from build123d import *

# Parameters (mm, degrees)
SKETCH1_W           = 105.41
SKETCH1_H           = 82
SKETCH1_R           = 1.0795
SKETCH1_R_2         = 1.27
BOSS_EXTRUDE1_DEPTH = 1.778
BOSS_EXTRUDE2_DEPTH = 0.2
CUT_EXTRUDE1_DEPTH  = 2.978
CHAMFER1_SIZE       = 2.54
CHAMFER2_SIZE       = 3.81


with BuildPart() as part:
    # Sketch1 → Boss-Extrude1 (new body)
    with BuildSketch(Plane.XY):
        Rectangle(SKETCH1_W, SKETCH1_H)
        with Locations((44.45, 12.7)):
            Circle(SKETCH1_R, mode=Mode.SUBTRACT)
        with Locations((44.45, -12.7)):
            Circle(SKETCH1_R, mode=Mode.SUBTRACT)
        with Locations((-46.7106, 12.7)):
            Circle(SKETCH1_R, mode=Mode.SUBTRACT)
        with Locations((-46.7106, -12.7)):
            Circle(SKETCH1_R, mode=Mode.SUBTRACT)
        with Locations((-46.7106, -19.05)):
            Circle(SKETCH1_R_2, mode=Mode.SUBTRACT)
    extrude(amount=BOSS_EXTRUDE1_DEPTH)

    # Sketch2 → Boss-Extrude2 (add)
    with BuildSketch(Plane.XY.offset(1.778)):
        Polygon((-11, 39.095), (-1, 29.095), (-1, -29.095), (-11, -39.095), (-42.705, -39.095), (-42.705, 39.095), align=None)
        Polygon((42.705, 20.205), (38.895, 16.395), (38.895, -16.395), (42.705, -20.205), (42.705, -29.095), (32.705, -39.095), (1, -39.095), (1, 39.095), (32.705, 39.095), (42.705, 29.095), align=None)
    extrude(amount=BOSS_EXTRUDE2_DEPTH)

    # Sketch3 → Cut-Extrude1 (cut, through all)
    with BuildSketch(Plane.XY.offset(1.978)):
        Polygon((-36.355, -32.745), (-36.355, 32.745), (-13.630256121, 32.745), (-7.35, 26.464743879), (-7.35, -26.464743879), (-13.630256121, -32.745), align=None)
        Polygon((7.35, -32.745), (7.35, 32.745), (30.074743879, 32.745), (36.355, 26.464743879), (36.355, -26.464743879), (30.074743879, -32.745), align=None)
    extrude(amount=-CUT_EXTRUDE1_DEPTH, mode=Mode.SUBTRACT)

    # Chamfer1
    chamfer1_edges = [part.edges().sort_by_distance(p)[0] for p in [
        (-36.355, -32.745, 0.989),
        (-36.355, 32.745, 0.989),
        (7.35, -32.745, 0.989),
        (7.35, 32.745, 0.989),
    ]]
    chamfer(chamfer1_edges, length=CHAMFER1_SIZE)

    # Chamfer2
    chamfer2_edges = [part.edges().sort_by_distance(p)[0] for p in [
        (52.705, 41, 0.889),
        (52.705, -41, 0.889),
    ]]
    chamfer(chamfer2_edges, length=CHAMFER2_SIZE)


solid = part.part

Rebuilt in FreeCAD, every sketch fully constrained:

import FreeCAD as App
import Part
import Sketcher
Q = App.Units.Quantity


def edges_at(feature, points):
    """Names of the edges that pass closest to the given points."""
    edges = feature.Shape.Edges
    near = lambda p: min(range(len(edges)), key=lambda i: edges[i].distToShape(Part.Vertex(*p))[0])
    return sorted({f"Edge{near(p) + 1}" for p in points})

doc = App.newDocument("Part")
body = doc.addObject("PartDesign::Body", "Body")

# Sketch on XY plane
sketch1 = body.newObject("Sketcher::SketchObject", "Sketch")
sketch1.AttachmentSupport = (doc.getObject("XY_Plane"), [""])
sketch1.MapMode = "FlatFace"
sketch1.addGeometry([
    Part.LineSegment(App.Vector(-52.7, 41, 0), App.Vector(-52.7, -41, 0)),  # 0
    Part.LineSegment(App.Vector(-52.7, -41, 0), App.Vector(52.7, -41, 0)),  # 1
    Part.LineSegment(App.Vector(52.7, -41, 0), App.Vector(52.7, 41, 0)),  # 2
    Part.LineSegment(App.Vector(52.7, 41, 0), App.Vector(-52.7, 41, 0)),  # 3
    Part.Circle(App.Vector(-46.7, -19.1, 0), App.Vector(0, 0, 1), 1.3),  # 4
    Part.Circle(App.Vector(-46.7, -12.7, 0), App.Vector(0, 0, 1), 1.1),  # 5
    Part.Circle(App.Vector(44.5, -12.7, 0), App.Vector(0, 0, 1), 1.1),  # 6
    Part.Circle(App.Vector(-46.7, 12.7, 0), App.Vector(0, 0, 1), 1.1),  # 7
    Part.Circle(App.Vector(44.5, 12.7, 0), App.Vector(0, 0, 1), 1.1),  # 8
], False)
sketch1.addConstraint([
    Sketcher.Constraint("Coincident", 0, 2, 1, 1),
    Sketcher.Constraint("Coincident", 1, 2, 2, 1),
    Sketcher.Constraint("Coincident", 2, 2, 3, 1),
    Sketcher.Constraint("Coincident", 3, 2, 0, 1),
    Sketcher.Constraint("Vertical", 0),
    Sketcher.Constraint("Horizontal", 1),
    Sketcher.Constraint("Vertical", 2),
    Sketcher.Constraint("Horizontal", 3),
    Sketcher.Constraint("Equal", 5, 6),
    Sketcher.Constraint("Equal", 6, 7),
    Sketcher.Constraint("Equal", 7, 8),
    Sketcher.Constraint("Symmetric", 0, 2, 2, 2, -1, 1),
    Sketcher.Constraint("Symmetric", 5, 3, 7, 3, -1),
    Sketcher.Constraint("Symmetric", 6, 3, 8, 3, -1),
    Sketcher.Constraint("Horizontal", 5, 3, 6, 3),
    Sketcher.Constraint("Vertical", 4, 3, 5, 3),
    Sketcher.Constraint("Diameter", 4, Q("0.1 in")),
    Sketcher.Constraint("Diameter", 5, Q("0.085 in")),
    Sketcher.Constraint("DistanceY", 5, 3, 7, 3, Q("1 in")),
    Sketcher.Constraint("DistanceX", 1, 1, 1, 2, Q("4.15 in")),
    Sketcher.Constraint("DistanceY", 4, 3, -1, 1, Q("0.75 in")),
    Sketcher.Constraint("DistanceX", -1, 1, 6, 3, Q("1.75 in")),
    Sketcher.Constraint("DistanceX", 4, 3, -1, 1, Q("1.839 in")),
    Sketcher.Constraint("DistanceY", 0, 2, 0, 1, 82.0),
])
pad1 = body.newObject("PartDesign::Pad", "Pad")
pad1.Profile = sketch1
pad1.Length = Q("0.07 in")

# Sketch on XY plane
sketch2 = body.newObject("Sketcher::SketchObject", "Sketch001")
sketch2.AttachmentSupport = (doc.getObject("XY_Plane"), [""])
sketch2.MapMode = "FlatFace"
sketch2.AttachmentOffset = App.Placement(App.Vector(0, 0, 0.07 * 25.4), App.Rotation())
sketch2.addGeometry([
    Part.LineSegment(App.Vector(-1, 29, 0), App.Vector(-11, 39, 0)),  # 0
    Part.LineSegment(App.Vector(-11, 39, 0), App.Vector(-43, 39, 0)),  # 1
    Part.LineSegment(App.Vector(-43, 39, 0), App.Vector(-43, -39, 0)),  # 2
    Part.LineSegment(App.Vector(-43, -39, 0), App.Vector(-11, -39, 0)),  # 3
    Part.LineSegment(App.Vector(-11, -39, 0), App.Vector(-1, -29, 0)),  # 4
    Part.LineSegment(App.Vector(-1, -29, 0), App.Vector(-1, 29, 0)),  # 5
    Part.LineSegment(App.Vector(39, 16, 0), App.Vector(43, 20, 0)),  # 6
    Part.LineSegment(App.Vector(43, 20, 0), App.Vector(43, 29, 0)),  # 7
    Part.LineSegment(App.Vector(43, 29, 0), App.Vector(33, 39, 0)),  # 8
    Part.LineSegment(App.Vector(33, 39, 0), App.Vector(1, 39, 0)),  # 9
    Part.LineSegment(App.Vector(1, 39, 0), App.Vector(1, -39, 0)),  # 10
    Part.LineSegment(App.Vector(1, -39, 0), App.Vector(33, -39, 0)),  # 11
    Part.LineSegment(App.Vector(33, -39, 0), App.Vector(43, -29, 0)),  # 12
    Part.LineSegment(App.Vector(43, -29, 0), App.Vector(43, -20, 0)),  # 13
    Part.LineSegment(App.Vector(43, -20, 0), App.Vector(39, -16, 0)),  # 14
    Part.LineSegment(App.Vector(39, -16, 0), App.Vector(39, 16, 0)),  # 15
], False)
sketch2.addConstraint([
    Sketcher.Constraint("Coincident", 0, 2, 1, 1),
    Sketcher.Constraint("Coincident", 1, 2, 2, 1),
    Sketcher.Constraint("Coincident", 2, 2, 3, 1),
    Sketcher.Constraint("Coincident", 3, 2, 4, 1),
    Sketcher.Constraint("Coincident", 4, 2, 5, 1),
    Sketcher.Constraint("Coincident", 5, 2, 0, 1),
    Sketcher.Constraint("Coincident", 6, 2, 7, 1),
    Sketcher.Constraint("Coincident", 7, 2, 8, 1),
    Sketcher.Constraint("Coincident", 8, 2, 9, 1),
    Sketcher.Constraint("Coincident", 9, 2, 10, 1),
    Sketcher.Constraint("Coincident", 10, 2, 11, 1),
    Sketcher.Constraint("Coincident", 11, 2, 12, 1),
    Sketcher.Constraint("Coincident", 12, 2, 13, 1),
    Sketcher.Constraint("Coincident", 13, 2, 14, 1),
    Sketcher.Constraint("Coincident", 14, 2, 15, 1),
    Sketcher.Constraint("Coincident", 15, 2, 6, 1),
    Sketcher.Constraint("Horizontal", 1),
    Sketcher.Constraint("Vertical", 2),
    Sketcher.Constraint("Horizontal", 3),
    Sketcher.Constraint("Vertical", 5),
    Sketcher.Constraint("Vertical", 7),
    Sketcher.Constraint("Horizontal", 9),
    Sketcher.Constraint("Vertical", 10),
    Sketcher.Constraint("Horizontal", 11),
    Sketcher.Constraint("Vertical", 13),
    Sketcher.Constraint("Vertical", 15),
    Sketcher.Constraint("Symmetric", 0, 2, 3, 2, -1),
    Sketcher.Constraint("Symmetric", 8, 2, 11, 2, -1),
    Sketcher.Constraint("Symmetric", 7, 2, 12, 2, -1),
    Sketcher.Constraint("Perpendicular", 0, 4),
    Sketcher.Constraint("Parallel", 4, 6),
    Sketcher.Constraint("Perpendicular", 6, 8),
    Sketcher.Constraint("Perpendicular", 8, 12),
    Sketcher.Constraint("Perpendicular", 12, 14),
    Sketcher.Constraint("Horizontal", 5, 2, 7, 2),
    Sketcher.Constraint("Horizontal", 1, 2, 8, 2),
    Sketcher.Constraint("Equal", 3, 9),
    Sketcher.Constraint("Equal", 7, 13),
    Sketcher.Constraint("DistanceY", 7, 1, 7, 2, Q("0.35 in")),
    Sketcher.Constraint("DistanceY", 12, 2, 14, 2, Q("0.5 in")),
    Sketcher.Constraint("DistanceX", 1, 2, 1, 1, 31.705),
    Sketcher.Constraint("DistanceY", 2, 2, 2, 1, 78.19),
    Sketcher.Constraint("DistanceY", 5, 1, 5, 2, 58.19),
    Sketcher.Constraint("DistanceX", 0, 2, -1, 1, 11.0),
    Sketcher.Constraint("DistanceX", -1, 1, 6, 2, 42.705),
])
pad2 = body.newObject("PartDesign::Pad", "Pad001")
pad2.Profile = sketch2
pad2.Length = 0.2

# Sketch on XY plane
sketch3 = body.newObject("Sketcher::SketchObject", "Sketch002")
sketch3.AttachmentSupport = (doc.getObject("XY_Plane"), [""])
sketch3.MapMode = "FlatFace"
sketch3.AttachmentOffset = App.Placement(App.Vector(0, 0, 1.978), App.Rotation())
sketch3.addGeometry([
    Part.LineSegment(App.Vector(-36, 33, 0), App.Vector(-36, -33, 0)),  # 0
    Part.LineSegment(App.Vector(-36, -33, 0), App.Vector(-14, -33, 0)),  # 1
    Part.LineSegment(App.Vector(-14, -33, 0), App.Vector(-7, -26, 0)),  # 2
    Part.LineSegment(App.Vector(-7, -26, 0), App.Vector(-7, 26, 0)),  # 3
    Part.LineSegment(App.Vector(-7, 26, 0), App.Vector(-14, 33, 0)),  # 4
    Part.LineSegment(App.Vector(-14, 33, 0), App.Vector(-36, 33, 0)),  # 5
    Part.LineSegment(App.Vector(7, 33, 0), App.Vector(7, -33, 0)),  # 6
    Part.LineSegment(App.Vector(7, -33, 0), App.Vector(30, -33, 0)),  # 7
    Part.LineSegment(App.Vector(30, -33, 0), App.Vector(36, -26, 0)),  # 8
    Part.LineSegment(App.Vector(36, -26, 0), App.Vector(36, 26, 0)),  # 9
    Part.LineSegment(App.Vector(36, 26, 0), App.Vector(30, 33, 0)),  # 10
    Part.LineSegment(App.Vector(30, 33, 0), App.Vector(7, 33, 0)),  # 11
], False)
sketch3.addConstraint([
    Sketcher.Constraint("Coincident", 0, 2, 1, 1),
    Sketcher.Constraint("Coincident", 1, 2, 2, 1),
    Sketcher.Constraint("Coincident", 2, 2, 3, 1),
    Sketcher.Constraint("Coincident", 3, 2, 4, 1),
    Sketcher.Constraint("Coincident", 4, 2, 5, 1),
    Sketcher.Constraint("Coincident", 5, 2, 0, 1),
    Sketcher.Constraint("Coincident", 6, 2, 7, 1),
    Sketcher.Constraint("Coincident", 7, 2, 8, 1),
    Sketcher.Constraint("Coincident", 8, 2, 9, 1),
    Sketcher.Constraint("Coincident", 9, 2, 10, 1),
    Sketcher.Constraint("Coincident", 10, 2, 11, 1),
    Sketcher.Constraint("Coincident", 11, 2, 6, 1),
    Sketcher.Constraint("Vertical", 0),
    Sketcher.Constraint("Horizontal", 1),
    Sketcher.Constraint("Vertical", 3),
    Sketcher.Constraint("Horizontal", 5),
    Sketcher.Constraint("Vertical", 6),
    Sketcher.Constraint("Horizontal", 7),
    Sketcher.Constraint("Vertical", 9),
    Sketcher.Constraint("Horizontal", 11),
    Sketcher.Constraint("Symmetric", 1, 2, 4, 2, -1),
    Sketcher.Constraint("Symmetric", 7, 2, 10, 2, -1),
    Sketcher.Constraint("Perpendicular", 2, 4),
    Sketcher.Constraint("Perpendicular", 4, 8),
    Sketcher.Constraint("Perpendicular", 8, 10),
    Sketcher.Constraint("Horizontal", 1, 2, 6, 2),
    Sketcher.Constraint("Horizontal", 2, 2, 8, 2),
    Sketcher.Constraint("Equal", 5, 7),
    Sketcher.Constraint("Equal", 2, 4),
    Sketcher.Constraint("DistanceY", 0, 2, 0, 1, 65.49),
    Sketcher.Constraint("DistanceX", 0, 2, -1, 1, 36.355),
    Sketcher.Constraint("DistanceX", 2, 2, -1, 1, 7.35),
    Sketcher.Constraint("DistanceX", -1, 1, 6, 2, 7.35),
    Sketcher.Constraint("DistanceX", 1, 1, 1, 2, 22.724744),
])
pocket1 = body.newObject("PartDesign::Pocket", "Pocket")
pocket1.Profile = sketch3
pocket1.Type = "ThroughAll"
doc.recompute()

chamfer = body.newObject("PartDesign::Chamfer", "Chamfer")
chamfer.Base = (pocket1, edges_at(pocket1, [
    (-36.355, -32.745, 0.989),
    (-36.355, 32.745, 0.989),
    (7.35, -32.745, 0.989),
    (7.35, 32.745, 0.989),
]))
chamfer.Size = Q("0.1 in")
doc.recompute()

chamfer2 = body.newObject("PartDesign::Chamfer", "Chamfer001")
chamfer2.Base = (chamfer, edges_at(chamfer, [(52.705, 41, 0.889), (52.705, -41, 0.889)]))
chamfer2.Size = Q("0.15 in")

doc.recompute()
